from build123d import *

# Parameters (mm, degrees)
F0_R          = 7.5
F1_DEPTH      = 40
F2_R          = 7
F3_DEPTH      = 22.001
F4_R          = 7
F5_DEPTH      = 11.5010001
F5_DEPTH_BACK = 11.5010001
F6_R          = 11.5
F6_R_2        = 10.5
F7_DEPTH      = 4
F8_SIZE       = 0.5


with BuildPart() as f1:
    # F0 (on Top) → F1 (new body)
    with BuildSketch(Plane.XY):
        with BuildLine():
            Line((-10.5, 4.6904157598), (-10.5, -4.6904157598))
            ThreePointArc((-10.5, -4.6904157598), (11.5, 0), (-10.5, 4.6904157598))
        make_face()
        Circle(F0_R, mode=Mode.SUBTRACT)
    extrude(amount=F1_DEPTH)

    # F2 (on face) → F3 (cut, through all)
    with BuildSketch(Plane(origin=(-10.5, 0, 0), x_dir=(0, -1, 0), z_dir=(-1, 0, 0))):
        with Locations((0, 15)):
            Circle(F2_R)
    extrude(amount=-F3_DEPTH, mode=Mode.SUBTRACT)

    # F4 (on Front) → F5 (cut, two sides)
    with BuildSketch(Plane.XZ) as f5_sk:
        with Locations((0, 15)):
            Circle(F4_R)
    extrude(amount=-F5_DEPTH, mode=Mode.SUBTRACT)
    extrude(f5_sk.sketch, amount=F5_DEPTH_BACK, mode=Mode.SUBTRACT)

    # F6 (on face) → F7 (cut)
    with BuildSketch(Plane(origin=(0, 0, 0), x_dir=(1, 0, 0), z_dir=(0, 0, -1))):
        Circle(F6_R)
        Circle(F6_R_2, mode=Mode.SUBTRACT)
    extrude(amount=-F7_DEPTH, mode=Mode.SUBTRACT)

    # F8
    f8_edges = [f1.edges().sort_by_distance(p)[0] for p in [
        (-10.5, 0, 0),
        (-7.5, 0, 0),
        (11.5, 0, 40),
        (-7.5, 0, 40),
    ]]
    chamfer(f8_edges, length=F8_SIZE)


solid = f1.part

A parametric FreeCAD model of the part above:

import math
import FreeCAD as App
import Part
import Sketcher
Q = App.Units.Quantity


def edges_at(feature, points):
    """Names of the edges that pass closest to the given points."""
    edges = feature.Shape.Edges
    near = lambda p: min(range(len(edges)), key=lambda i: edges[i].distToShape(Part.Vertex(*p))[0])
    return sorted({f"Edge{near(p) + 1}" for p in points})

doc = App.newDocument("Part")
body = doc.addObject("PartDesign::Body", "Body")

sketch1 = body.newObject("Sketcher::SketchObject", "Sketch")
sketch1.AttachmentSupport = (doc.getObject("XY_Plane"), [""])
sketch1.MapMode = "FlatFace"
sketch1.addGeometry([
    Part.LineSegment(App.Vector(-10, 5, 0), App.Vector(-10, -5, 0)),
    Part.ArcOfCircle(Part.Circle(App.Vector(0, 0, 0), App.Vector(0, 0, 1), 12), math.radians(-156), math.radians(156)),
    Part.Circle(App.Vector(0, 0, 0), App.Vector(0, 0, 1), 8),
], False)
sketch1.addConstraint([
    Sketcher.Constraint("Coincident", 0, 1, 1, 2),
    Sketcher.Constraint("Coincident", 1, 1, 0, 2),
    Sketcher.Constraint("Vertical", 0),
    Sketcher.Constraint("Coincident", 1, 3, -1, 1),
    Sketcher.Constraint("Coincident", 2, 3, -1, 1),
    Sketcher.Constraint("Diameter", 2, Q("15 mm")),
    Sketcher.Constraint("Radius", 1, Q("11.5 mm")),
    Sketcher.Constraint("DistanceX", 0, 1, -1, 1, Q("10.5 mm")),
])
pad1 = body.newObject("PartDesign::Pad", "Pad")
pad1.Profile = sketch1
pad1.Length = 40

sketch2 = body.newObject("Sketcher::SketchObject", "Sketch001")
sketch2.AttachmentSupport = (doc.getObject("YZ_Plane"), [""])
sketch2.MapMode = "FlatFace"
sketch2.AttachmentOffset = App.Placement(App.Vector(0, 0, -10.5), App.Rotation())
sketch2.addGeometry(Part.Circle(App.Vector(0, 15, 0), App.Vector(0, 0, 1), 7), False)
sketch2.addConstraint([
    Sketcher.Constraint("PointOnObject", 0, 3, -2),
    Sketcher.Constraint("Diameter", 0, Q("14 mm")),
    Sketcher.Constraint("DistanceY", -1, 1, 0, 3, Q("15 mm")),
])
pocket1 = body.newObject("PartDesign::Pocket", "Pocket")
pocket1.Profile = sketch2
pocket1.Type = "ThroughAll"
pocket1.Reversed = True

sketch3 = body.newObject("Sketcher::SketchObject", "Sketch002")
sketch3.AttachmentSupport = (doc.getObject("XZ_Plane"), [""])
sketch3.MapMode = "FlatFace"
sketch3.addGeometry(Part.Circle(App.Vector(0, 15, 0), App.Vector(0, 0, 1), 7), False)
sketch3.addConstraint([
    Sketcher.Constraint("PointOnObject", 0, 3, -2),
    Sketcher.Constraint("Diameter", 0, Q("14 mm")),
    Sketcher.Constraint("DistanceY", -1, 1, 0, 3, Q("15 mm")),
])
pocket2 = body.newObject("PartDesign::Pocket", "Pocket001")
pocket2.Profile = sketch3
pocket2.Type = "ThroughAll"
pocket2.Midplane = True

sketch4 = body.newObject("Sketcher::SketchObject", "Sketch003")
sketch4.AttachmentSupport = (doc.getObject("XY_Plane"), [""])
sketch4.MapMode = "FlatFace"
sketch4.addGeometry([
    Part.Circle(App.Vector(0, 0, 0), App.Vector(0, 0, 1), 12),
    Part.Circle(App.Vector(0, 0, 0), App.Vector(0, 0, 1), 10),
], False)
sketch4.addConstraint([
    Sketcher.Constraint("Coincident", 0, 3, -1, 1),
    Sketcher.Constraint("Coincident", 1, 3, -1, 1),
    Sketcher.Constraint("Diameter", 0, Q("23 mm")),
    Sketcher.Constraint("Diameter", 1, Q("21 mm")),
])
pocket3 = body.newObject("PartDesign::Pocket", "Pocket002")
pocket3.Profile = sketch4
pocket3.Length = 4
pocket3.Reversed = True
doc.recompute()

chamfer = body.newObject("PartDesign::Chamfer", "Chamfer")
chamfer.Base = (pocket3, edges_at(pocket3, [
    (-10.5, 0, 0),
    (-7.5, 0, 0),
    (11.5, 0, 40),
    (-7.5, 0, 40),
]))
chamfer.Size = 0.5

doc.recompute()
